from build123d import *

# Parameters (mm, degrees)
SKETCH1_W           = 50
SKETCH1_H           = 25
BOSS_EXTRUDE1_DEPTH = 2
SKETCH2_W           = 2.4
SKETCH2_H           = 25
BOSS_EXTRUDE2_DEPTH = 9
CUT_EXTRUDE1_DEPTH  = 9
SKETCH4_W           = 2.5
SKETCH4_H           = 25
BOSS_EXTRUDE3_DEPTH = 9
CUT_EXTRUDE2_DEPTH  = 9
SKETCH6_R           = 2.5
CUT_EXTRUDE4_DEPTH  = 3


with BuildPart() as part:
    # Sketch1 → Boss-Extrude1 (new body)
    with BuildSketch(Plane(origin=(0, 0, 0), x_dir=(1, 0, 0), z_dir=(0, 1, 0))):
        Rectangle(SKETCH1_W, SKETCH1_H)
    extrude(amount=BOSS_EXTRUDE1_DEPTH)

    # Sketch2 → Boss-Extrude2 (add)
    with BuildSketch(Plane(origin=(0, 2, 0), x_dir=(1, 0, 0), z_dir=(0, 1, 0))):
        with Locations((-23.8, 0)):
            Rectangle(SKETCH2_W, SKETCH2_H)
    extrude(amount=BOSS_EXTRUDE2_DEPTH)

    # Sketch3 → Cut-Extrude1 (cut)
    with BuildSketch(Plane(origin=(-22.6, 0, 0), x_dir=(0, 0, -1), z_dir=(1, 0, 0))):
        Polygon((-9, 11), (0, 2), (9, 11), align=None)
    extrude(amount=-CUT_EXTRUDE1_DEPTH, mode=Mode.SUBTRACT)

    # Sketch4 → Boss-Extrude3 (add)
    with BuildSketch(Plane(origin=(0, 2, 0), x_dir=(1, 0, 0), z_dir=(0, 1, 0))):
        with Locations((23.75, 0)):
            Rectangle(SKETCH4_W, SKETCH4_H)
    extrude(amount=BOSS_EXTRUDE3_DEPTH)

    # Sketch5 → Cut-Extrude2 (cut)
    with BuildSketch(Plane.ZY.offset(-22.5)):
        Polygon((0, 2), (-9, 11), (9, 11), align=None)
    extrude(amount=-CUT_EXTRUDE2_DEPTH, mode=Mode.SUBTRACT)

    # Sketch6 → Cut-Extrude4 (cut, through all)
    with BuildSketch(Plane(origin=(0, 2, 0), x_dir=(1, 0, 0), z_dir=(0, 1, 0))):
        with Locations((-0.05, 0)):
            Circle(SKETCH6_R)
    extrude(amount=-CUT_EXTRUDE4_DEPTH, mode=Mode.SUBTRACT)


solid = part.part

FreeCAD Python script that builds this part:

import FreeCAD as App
import Part
import Sketcher

V = App.Vector
Q = App.Units.Quantity

doc = App.newDocument("Part")
body = doc.addObject("PartDesign::Body", "Body")

# Sketch on XZ plane
sketch1 = doc.addObject("Sketcher::SketchObject", "Sketch")
body.addObject(sketch1)
sketch1.AttachmentSupport = (doc.XZ_Plane, [""])
sketch1.MapMode = "FlatFace"
sketch1.addGeometry(Part.LineSegment(V(-25, -12, 0), V(-25, 12, 0)), False)
sketch1.addGeometry(Part.LineSegment(V(-25, 12, 0), V(25, 12, 0)), False)
sketch1.addGeometry(Part.LineSegment(V(25, 12, 0), V(25, -12, 0)), False)
sketch1.addGeometry(Part.LineSegment(V(25, -12, 0), V(-25, -12, 0)), False)
sketch1.addConstraint(Sketcher.Constraint("Coincident", 0, 2, 1, 1))
sketch1.addConstraint(Sketcher.Constraint("Coincident", 1, 2, 2, 1))
sketch1.addConstraint(Sketcher.Constraint("Coincident", 2, 2, 3, 1))
sketch1.addConstraint(Sketcher.Constraint("Coincident", 3, 2, 0, 1))
sketch1.addConstraint(Sketcher.Constraint("Vertical", 0))
sketch1.addConstraint(Sketcher.Constraint("Horizontal", 1))
sketch1.addConstraint(Sketcher.Constraint("Vertical", 2))
sketch1.addConstraint(Sketcher.Constraint("Horizontal", 3))
sketch1.addConstraint(Sketcher.Constraint("Symmetric", 0, 2, 2, 2, -1, 1))
sketch1.addConstraint(Sketcher.Constraint("DistanceX", 1, 1, 1, 2, Q("50 mm")))
sketch1.addConstraint(Sketcher.Constraint("DistanceY", 0, 1, 0, 2, Q("25 mm")))
pad1 = doc.addObject("PartDesign::Pad", "Pad")
body.addObject(pad1)
pad1.Profile = sketch1
pad1.Length = 2
pad1.Reversed = True

# Sketch on XZ plane
sketch2 = doc.addObject("Sketcher::SketchObject", "Sketch001")
body.addObject(sketch2)
sketch2.AttachmentSupport = (doc.XZ_Plane, [""])
sketch2.MapMode = "FlatFace"
sketch2.AttachmentOffset = App.Placement(V(0, 0, -2), App.Rotation())
sketch2.addGeometry(Part.LineSegment(V(-25, -12.5, 0), V(-25, 12.5, 0)), False)
sketch2.addGeometry(Part.LineSegment(V(-25, 12.5, 0), V(-22.6, 12.5, 0)), False)
sketch2.addGeometry(Part.LineSegment(V(-22.6, 12.5, 0), V(-22.6, -12.5, 0)), False)
sketch2.addGeometry(Part.LineSegment(V(-22.6, -12.5, 0), V(-25, -12.5, 0)), False)
sketch2.addConstraint(Sketcher.Constraint("Coincident", 0, 2, 1, 1))
sketch2.addConstraint(Sketcher.Constraint("Coincident", 1, 2, 2, 1))
sketch2.addConstraint(Sketcher.Constraint("Coincident", 2, 2, 3, 1))
sketch2.addConstraint(Sketcher.Constraint("Coincident", 3, 2, 0, 1))
sketch2.addConstraint(Sketcher.Constraint("Vertical", 0))
sketch2.addConstraint(Sketcher.Constraint("Horizontal", 1))
sketch2.addConstraint(Sketcher.Constraint("Vertical", 2))
sketch2.addConstraint(Sketcher.Constraint("Horizontal", 3))
sketch2.addConstraint(Sketcher.Constraint("DistanceY", 0, 1, 0, 2, Q("25 mm")))
sketch2.addConstraint(Sketcher.Constraint("DistanceX", 1, 1, 1, 2, Q("2.4 mm")))
sketch2.addConstraint(Sketcher.Constraint("DistanceX", 0, 2, -1, 1, Q("25 mm")))
sketch2.addConstraint(Sketcher.Constraint("DistanceY", -1, 1, 0, 2, Q("12.5 mm")))
pad2 = doc.addObject("PartDesign::Pad", "Pad001")
body.addObject(pad2)
pad2.Profile = sketch2
pad2.Length = 9
pad2.Reversed = True

# Sketch on YZ plane
sketch3 = doc.addObject("Sketcher::SketchObject", "Sketch002")
body.addObject(sketch3)
sketch3.AttachmentSupport = (doc.YZ_Plane, [""])
sketch3.MapMode = "FlatFace"
sketch3.AttachmentOffset = App.Placement(V(0, 0, -22.6), App.Rotation())
sketch3.addGeometry(Part.LineSegment(V(11, 9, 0), V(2, 0, 0)), False)
sketch3.addGeometry(Part.LineSegment(V(2, 0, 0), V(11, -9, 0)), False)
sketch3.addGeometry(Part.LineSegment(V(11, -9, 0), V(11, 9, 0)), False)
sketch3.addConstraint(Sketcher.Constraint("Coincident", 0, 2, 1, 1))
sketch3.addConstraint(Sketcher.Constraint("Coincident", 1, 2, 2, 1))
sketch3.addConstraint(Sketcher.Constraint("Coincident", 2, 2, 0, 1))
sketch3.addConstraint(Sketcher.Constraint("Vertical", 2))
sketch3.addConstraint(Sketcher.Constraint("PointOnObject", 0, 2, -1))
sketch3.addConstraint(Sketcher.Constraint("Perpendicular", 0, 1))
sketch3.addConstraint(Sketcher.Constraint("Equal", 0, 1))
sketch3.addConstraint(Sketcher.Constraint("DistanceY", 2, 1, 2, 2, Q("18 mm")))
sketch3.addConstraint(Sketcher.Constraint("DistanceX", -1, 1, 0, 2, Q("2 mm")))
pocket1 = doc.addObject("PartDesign::Pocket", "Pocket")
body.addObject(pocket1)
pocket1.Profile = sketch3
pocket1.Length = 9

# Sketch on XZ plane
sketch4 = doc.addObject("Sketcher::SketchObject", "Sketch003")
body.addObject(sketch4)
sketch4.AttachmentSupport = (doc.XZ_Plane, [""])
sketch4.MapMode = "FlatFace"
sketch4.AttachmentOffset = App.Placement(V(0, 0, -2), App.Rotation())
sketch4.addGeometry(Part.LineSegment(V(22.5, -12.5, 0), V(22.5, 12.5, 0)), False)
sketch4.addGeometry(Part.LineSegment(V(22.5, 12.5, 0), V(25, 12.5, 0)), False)
sketch4.addGeometry(Part.LineSegment(V(25, 12.5, 0), V(25, -12.5, 0)), False)
sketch4.addGeometry(Part.LineSegment(V(25, -12.5, 0), V(22.5, -12.5, 0)), False)
sketch4.addConstraint(Sketcher.Constraint("Coincident", 0, 2, 1, 1))
sketch4.addConstraint(Sketcher.Constraint("Coincident", 1, 2, 2, 1))
sketch4.addConstraint(Sketcher.Constraint("Coincident", 2, 2, 3, 1))
sketch4.addConstraint(Sketcher.Constraint("Coincident", 3, 2, 0, 1))
sketch4.addConstraint(Sketcher.Constraint("Vertical", 0))
sketch4.addConstraint(Sketcher.Constraint("Horizontal", 1))
sketch4.addConstraint(Sketcher.Constraint("Vertical", 2))
sketch4.addConstraint(Sketcher.Constraint("Horizontal", 3))
sketch4.addConstraint(Sketcher.Constraint("DistanceY", 0, 1, 0, 2, Q("25 mm")))
sketch4.addConstraint(Sketcher.Constraint("DistanceX", 1, 1, 1, 2, Q("2.5 mm")))
sketch4.addConstraint(Sketcher.Constraint("DistanceX", -1, 1, 1, 2, Q("25 mm")))
sketch4.addConstraint(Sketcher.Constraint("DistanceY", -1, 1, 0, 2, Q("12.5 mm")))
pad3 = doc.addObject("PartDesign::Pad", "Pad002")
body.addObject(pad3)
pad3.Profile = sketch4
pad3.Length = 9
pad3.Reversed = True

# Sketch on YZ plane
sketch5 = doc.addObject("Sketcher::SketchObject", "Sketch004")
body.addObject(sketch5)
sketch5.AttachmentSupport = (doc.YZ_Plane, [""])
sketch5.MapMode = "FlatFace"
sketch5.AttachmentOffset = App.Placement(V(0, 0, 22.5), App.Rotation())
sketch5.addGeometry(Part.LineSegment(V(11, -9, 0), V(2, 0, 0)), False)
sketch5.addGeometry(Part.LineSegment(V(2, 0, 0), V(11, 9, 0)), False)
sketch5.addGeometry(Part.LineSegment(V(11, 9, 0), V(11, -9, 0)), False)
sketch5.addConstraint(Sketcher.Constraint("Coincident", 0, 2, 1, 1))
sketch5.addConstraint(Sketcher.Constraint("Coincident", 1, 2, 2, 1))
sketch5.addConstraint(Sketcher.Constraint("Coincident", 2, 2, 0, 1))
sketch5.addConstraint(Sketcher.Constraint("Vertical", 2))
sketch5.addConstraint(Sketcher.Constraint("PointOnObject", 0, 2, -1))
sketch5.addConstraint(Sketcher.Constraint("Perpendicular", 0, 1))
sketch5.addConstraint(Sketcher.Constraint("Equal", 0, 1))
sketch5.addConstraint(Sketcher.Constraint("DistanceY", 2, 2, 2, 1, Q("18 mm")))
sketch5.addConstraint(Sketcher.Constraint("DistanceX", -1, 1, 0, 2, Q("2 mm")))
pocket2 = doc.addObject("PartDesign::Pocket", "Pocket001")
body.addObject(pocket2)
pocket2.Profile = sketch5
pocket2.Length = 9
pocket2.Reversed = True

# Sketch on XZ plane
sketch6 = doc.addObject("Sketcher::SketchObject", "Sketch005")
body.addObject(sketch6)
sketch6.AttachmentSupport = (doc.XZ_Plane, [""])
sketch6.MapMode = "FlatFace"
sketch6.AttachmentOffset = App.Placement(V(0, 0, -2), App.Rotation())
sketch6.addGeometry(Part.Circle(V(-0.1, 0, 0), V(0, 0, 1), 2.5), False)
sketch6.addConstraint(Sketcher.Constraint("PointOnObject", 0, 3, -1))
sketch6.addConstraint(Sketcher.Constraint("Diameter", 0, Q("5 mm")))
sketch6.addConstraint(Sketcher.Constraint("DistanceX", 0, 3, -1, 1, Q("0.05 mm")))
pocket3 = doc.addObject("PartDesign::Pocket", "Pocket002")
body.addObject(pocket3)
pocket3.Profile = sketch6
pocket3.Type = "ThroughAll"
pocket3.Reversed = True

doc.recompute()
